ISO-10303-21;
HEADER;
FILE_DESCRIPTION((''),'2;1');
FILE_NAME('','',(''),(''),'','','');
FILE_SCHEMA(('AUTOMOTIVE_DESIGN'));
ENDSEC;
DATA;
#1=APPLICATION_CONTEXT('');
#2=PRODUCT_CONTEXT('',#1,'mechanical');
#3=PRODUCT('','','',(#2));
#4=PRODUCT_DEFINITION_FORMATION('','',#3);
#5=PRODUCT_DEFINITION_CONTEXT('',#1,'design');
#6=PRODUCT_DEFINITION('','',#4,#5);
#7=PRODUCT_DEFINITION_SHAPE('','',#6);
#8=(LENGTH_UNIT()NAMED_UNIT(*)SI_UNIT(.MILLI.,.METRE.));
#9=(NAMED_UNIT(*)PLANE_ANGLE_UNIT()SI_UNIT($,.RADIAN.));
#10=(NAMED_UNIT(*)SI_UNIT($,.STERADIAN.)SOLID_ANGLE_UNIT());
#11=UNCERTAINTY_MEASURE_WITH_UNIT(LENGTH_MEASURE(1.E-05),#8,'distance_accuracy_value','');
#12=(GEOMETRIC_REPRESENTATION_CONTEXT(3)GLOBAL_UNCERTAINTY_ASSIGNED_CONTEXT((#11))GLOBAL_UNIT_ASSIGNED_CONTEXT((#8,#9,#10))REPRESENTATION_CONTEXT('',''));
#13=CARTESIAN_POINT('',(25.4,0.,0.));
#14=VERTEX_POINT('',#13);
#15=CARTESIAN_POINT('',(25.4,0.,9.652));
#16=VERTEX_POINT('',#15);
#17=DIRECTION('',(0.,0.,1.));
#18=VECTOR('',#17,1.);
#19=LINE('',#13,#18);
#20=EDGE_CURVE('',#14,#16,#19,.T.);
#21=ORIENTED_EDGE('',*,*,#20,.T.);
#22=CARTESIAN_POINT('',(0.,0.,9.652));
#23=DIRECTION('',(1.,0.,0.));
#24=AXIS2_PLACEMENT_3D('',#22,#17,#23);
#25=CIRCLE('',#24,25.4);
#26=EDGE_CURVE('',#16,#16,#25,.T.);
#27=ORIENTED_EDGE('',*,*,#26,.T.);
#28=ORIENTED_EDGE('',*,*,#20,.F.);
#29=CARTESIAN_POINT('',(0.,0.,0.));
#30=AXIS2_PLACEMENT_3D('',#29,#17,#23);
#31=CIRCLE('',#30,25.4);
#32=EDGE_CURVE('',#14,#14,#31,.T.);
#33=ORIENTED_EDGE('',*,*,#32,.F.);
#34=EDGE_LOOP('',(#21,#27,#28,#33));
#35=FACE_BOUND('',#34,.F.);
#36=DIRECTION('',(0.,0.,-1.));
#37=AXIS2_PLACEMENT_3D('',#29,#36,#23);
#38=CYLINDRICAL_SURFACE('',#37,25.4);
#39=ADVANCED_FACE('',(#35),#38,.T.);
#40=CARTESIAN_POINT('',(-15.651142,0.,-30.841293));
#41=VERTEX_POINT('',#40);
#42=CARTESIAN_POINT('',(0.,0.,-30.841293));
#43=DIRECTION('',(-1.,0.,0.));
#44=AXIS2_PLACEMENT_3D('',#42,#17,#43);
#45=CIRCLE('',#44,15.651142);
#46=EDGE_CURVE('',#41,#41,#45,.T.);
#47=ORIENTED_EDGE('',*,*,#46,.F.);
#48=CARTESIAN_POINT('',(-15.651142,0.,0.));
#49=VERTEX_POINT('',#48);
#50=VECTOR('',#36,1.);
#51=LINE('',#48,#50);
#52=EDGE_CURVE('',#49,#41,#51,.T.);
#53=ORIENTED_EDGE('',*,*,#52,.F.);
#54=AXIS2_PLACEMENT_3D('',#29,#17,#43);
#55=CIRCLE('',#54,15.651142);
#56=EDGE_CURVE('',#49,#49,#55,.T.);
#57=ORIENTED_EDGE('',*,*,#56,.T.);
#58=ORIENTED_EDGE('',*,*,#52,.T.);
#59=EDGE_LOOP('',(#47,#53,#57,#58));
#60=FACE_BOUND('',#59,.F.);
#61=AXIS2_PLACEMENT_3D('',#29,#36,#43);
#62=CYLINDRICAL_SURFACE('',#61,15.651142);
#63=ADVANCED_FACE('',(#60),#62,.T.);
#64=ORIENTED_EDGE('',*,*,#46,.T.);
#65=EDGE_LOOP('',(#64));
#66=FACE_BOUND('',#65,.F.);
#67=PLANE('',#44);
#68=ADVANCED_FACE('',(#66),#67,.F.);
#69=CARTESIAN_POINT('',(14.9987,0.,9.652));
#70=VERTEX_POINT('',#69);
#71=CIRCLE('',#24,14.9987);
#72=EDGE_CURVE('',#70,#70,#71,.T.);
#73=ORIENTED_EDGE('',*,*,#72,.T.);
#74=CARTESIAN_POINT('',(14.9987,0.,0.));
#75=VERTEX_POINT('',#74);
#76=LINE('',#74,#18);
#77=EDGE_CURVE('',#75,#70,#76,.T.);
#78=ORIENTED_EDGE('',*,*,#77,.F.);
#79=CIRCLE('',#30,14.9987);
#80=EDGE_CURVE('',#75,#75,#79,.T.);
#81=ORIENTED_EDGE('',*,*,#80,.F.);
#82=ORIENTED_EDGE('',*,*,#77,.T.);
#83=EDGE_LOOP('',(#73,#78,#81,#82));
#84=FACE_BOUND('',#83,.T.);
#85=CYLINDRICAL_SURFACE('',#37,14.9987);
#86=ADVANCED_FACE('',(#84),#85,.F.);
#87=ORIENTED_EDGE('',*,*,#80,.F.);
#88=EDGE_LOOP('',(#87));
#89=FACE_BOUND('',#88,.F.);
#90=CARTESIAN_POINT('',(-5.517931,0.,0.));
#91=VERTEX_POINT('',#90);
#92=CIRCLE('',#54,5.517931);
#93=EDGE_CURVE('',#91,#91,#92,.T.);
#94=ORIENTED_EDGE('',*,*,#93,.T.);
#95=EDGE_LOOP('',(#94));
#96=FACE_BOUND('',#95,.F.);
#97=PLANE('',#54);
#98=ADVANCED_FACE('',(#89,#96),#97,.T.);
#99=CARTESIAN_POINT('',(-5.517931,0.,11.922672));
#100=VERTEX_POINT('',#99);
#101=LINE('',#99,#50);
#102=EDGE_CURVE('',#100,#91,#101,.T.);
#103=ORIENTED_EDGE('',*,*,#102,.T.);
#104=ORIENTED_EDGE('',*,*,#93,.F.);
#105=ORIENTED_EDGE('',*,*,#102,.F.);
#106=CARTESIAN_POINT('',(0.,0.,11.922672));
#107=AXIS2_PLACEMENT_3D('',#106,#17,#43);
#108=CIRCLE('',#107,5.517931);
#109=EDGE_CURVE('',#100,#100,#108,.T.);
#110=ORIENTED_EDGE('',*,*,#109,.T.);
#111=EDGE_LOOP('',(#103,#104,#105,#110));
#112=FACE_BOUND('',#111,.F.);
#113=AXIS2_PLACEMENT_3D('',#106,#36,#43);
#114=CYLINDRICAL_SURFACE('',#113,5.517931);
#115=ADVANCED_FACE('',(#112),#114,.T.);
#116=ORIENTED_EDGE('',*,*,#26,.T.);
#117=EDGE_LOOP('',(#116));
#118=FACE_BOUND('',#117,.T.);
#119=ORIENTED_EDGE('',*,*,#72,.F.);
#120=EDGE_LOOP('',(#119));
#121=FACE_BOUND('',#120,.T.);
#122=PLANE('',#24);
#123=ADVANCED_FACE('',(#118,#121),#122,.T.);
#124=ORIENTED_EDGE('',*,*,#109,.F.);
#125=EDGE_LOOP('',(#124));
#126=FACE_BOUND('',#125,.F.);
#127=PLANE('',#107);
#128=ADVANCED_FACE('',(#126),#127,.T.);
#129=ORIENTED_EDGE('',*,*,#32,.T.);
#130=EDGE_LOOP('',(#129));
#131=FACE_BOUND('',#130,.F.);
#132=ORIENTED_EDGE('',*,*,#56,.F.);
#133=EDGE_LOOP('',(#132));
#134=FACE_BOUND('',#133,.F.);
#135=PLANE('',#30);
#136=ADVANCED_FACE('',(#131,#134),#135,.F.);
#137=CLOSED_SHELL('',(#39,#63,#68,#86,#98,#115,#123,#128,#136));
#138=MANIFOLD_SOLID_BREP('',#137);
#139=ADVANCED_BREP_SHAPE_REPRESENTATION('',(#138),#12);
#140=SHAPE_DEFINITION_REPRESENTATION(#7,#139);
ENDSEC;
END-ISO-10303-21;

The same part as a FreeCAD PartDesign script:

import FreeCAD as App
import Part
import Sketcher
from FreeCAD import Vector
Q = App.Units.Quantity


def add_polygon(sketch, points):
    """Adds a closed chain of lines whose ends are joined by coincident constraints."""
    first, n = sketch.GeometryCount, len(points)
    for a, b in zip(points, points[1:] + points[:1]):
        sketch.addGeometry(Part.LineSegment(App.Vector(*a, 0), App.Vector(*b, 0)), False)
    for i in range(n):
        sketch.addConstraint(Sketcher.Constraint("Coincident", first + i, 2, first + (i + 1) % n, 1))

doc = App.newDocument("Part")
body = doc.addObject("PartDesign::Body", "Body")

sketch1 = body.newObject("Sketcher::SketchObject", "Sketch")
sketch1.AttachmentSupport = (doc.getObject("XY_Plane"), [""])
sketch1.MapMode = "FlatFace"
sketch1.addGeometry(Part.Circle(Vector(0, 0, 0), Vector(0, 0, 1), 25), False)
sketch1.addGeometry(Part.Circle(Vector(0, 0, 0), Vector(0, 0, 1), 15), False)
sketch1.addConstraint(Sketcher.Constraint("Coincident", 0, 3, -1, 1))
sketch1.addConstraint(Sketcher.Constraint("Coincident", 1, 3, -1, 1))
sketch1.addConstraint(Sketcher.Constraint("Diameter", 0, Q("2 in")))
sketch1.addConstraint(Sketcher.Constraint("Diameter", 1, Q("1.181 in")))
pad1 = body.newObject("PartDesign::Pad", "Pad")
pad1.Profile = sketch1
pad1.Length = Q("0.38 in")

sketch2 = body.newObject("Sketcher::SketchObject", "Sketch001")
sketch2.AttachmentSupport = (doc.getObject("XZ_Plane"), [""])
sketch2.MapMode = "FlatFace"
add_polygon(sketch2, [(0, -31), (0, 12), (-6, 12), (-6, 0), (-16, 0), (-16, -31)])
sketch2.addConstraint(Sketcher.Constraint("Vertical", 0))
sketch2.addConstraint(Sketcher.Constraint("Horizontal", 1))
sketch2.addConstraint(Sketcher.Constraint("Vertical", 2))
sketch2.addConstraint(Sketcher.Constraint("Horizontal", 3))
sketch2.addConstraint(Sketcher.Constraint("Vertical", 4))
sketch2.addConstraint(Sketcher.Constraint("Horizontal", 5))
sketch2.addConstraint(Sketcher.Constraint("PointOnObject", 0, 2, -2))
sketch2.addConstraint(Sketcher.Constraint("PointOnObject", 2, 2, -1))
sketch2.addConstraint(Sketcher.Constraint("DistanceX", 1, 2, 1, 1, Q("5.517931 mm")))
sketch2.addConstraint(Sketcher.Constraint("DistanceX", 3, 2, 3, 1, Q("10.133211 mm")))
sketch2.addConstraint(Sketcher.Constraint("DistanceY", 0, 1, 0, 2, Q("42.763965 mm")))
sketch2.addConstraint(Sketcher.Constraint("DistanceY", 2, 2, 2, 1, Q("11.922672 mm")))
revolution = body.newObject("PartDesign::Revolution", "Revolution")
revolution.Profile = sketch2
revolution.ReferenceAxis = (sketch2, ["V_Axis"])
revolution.Angle = 360

doc.recompute()
